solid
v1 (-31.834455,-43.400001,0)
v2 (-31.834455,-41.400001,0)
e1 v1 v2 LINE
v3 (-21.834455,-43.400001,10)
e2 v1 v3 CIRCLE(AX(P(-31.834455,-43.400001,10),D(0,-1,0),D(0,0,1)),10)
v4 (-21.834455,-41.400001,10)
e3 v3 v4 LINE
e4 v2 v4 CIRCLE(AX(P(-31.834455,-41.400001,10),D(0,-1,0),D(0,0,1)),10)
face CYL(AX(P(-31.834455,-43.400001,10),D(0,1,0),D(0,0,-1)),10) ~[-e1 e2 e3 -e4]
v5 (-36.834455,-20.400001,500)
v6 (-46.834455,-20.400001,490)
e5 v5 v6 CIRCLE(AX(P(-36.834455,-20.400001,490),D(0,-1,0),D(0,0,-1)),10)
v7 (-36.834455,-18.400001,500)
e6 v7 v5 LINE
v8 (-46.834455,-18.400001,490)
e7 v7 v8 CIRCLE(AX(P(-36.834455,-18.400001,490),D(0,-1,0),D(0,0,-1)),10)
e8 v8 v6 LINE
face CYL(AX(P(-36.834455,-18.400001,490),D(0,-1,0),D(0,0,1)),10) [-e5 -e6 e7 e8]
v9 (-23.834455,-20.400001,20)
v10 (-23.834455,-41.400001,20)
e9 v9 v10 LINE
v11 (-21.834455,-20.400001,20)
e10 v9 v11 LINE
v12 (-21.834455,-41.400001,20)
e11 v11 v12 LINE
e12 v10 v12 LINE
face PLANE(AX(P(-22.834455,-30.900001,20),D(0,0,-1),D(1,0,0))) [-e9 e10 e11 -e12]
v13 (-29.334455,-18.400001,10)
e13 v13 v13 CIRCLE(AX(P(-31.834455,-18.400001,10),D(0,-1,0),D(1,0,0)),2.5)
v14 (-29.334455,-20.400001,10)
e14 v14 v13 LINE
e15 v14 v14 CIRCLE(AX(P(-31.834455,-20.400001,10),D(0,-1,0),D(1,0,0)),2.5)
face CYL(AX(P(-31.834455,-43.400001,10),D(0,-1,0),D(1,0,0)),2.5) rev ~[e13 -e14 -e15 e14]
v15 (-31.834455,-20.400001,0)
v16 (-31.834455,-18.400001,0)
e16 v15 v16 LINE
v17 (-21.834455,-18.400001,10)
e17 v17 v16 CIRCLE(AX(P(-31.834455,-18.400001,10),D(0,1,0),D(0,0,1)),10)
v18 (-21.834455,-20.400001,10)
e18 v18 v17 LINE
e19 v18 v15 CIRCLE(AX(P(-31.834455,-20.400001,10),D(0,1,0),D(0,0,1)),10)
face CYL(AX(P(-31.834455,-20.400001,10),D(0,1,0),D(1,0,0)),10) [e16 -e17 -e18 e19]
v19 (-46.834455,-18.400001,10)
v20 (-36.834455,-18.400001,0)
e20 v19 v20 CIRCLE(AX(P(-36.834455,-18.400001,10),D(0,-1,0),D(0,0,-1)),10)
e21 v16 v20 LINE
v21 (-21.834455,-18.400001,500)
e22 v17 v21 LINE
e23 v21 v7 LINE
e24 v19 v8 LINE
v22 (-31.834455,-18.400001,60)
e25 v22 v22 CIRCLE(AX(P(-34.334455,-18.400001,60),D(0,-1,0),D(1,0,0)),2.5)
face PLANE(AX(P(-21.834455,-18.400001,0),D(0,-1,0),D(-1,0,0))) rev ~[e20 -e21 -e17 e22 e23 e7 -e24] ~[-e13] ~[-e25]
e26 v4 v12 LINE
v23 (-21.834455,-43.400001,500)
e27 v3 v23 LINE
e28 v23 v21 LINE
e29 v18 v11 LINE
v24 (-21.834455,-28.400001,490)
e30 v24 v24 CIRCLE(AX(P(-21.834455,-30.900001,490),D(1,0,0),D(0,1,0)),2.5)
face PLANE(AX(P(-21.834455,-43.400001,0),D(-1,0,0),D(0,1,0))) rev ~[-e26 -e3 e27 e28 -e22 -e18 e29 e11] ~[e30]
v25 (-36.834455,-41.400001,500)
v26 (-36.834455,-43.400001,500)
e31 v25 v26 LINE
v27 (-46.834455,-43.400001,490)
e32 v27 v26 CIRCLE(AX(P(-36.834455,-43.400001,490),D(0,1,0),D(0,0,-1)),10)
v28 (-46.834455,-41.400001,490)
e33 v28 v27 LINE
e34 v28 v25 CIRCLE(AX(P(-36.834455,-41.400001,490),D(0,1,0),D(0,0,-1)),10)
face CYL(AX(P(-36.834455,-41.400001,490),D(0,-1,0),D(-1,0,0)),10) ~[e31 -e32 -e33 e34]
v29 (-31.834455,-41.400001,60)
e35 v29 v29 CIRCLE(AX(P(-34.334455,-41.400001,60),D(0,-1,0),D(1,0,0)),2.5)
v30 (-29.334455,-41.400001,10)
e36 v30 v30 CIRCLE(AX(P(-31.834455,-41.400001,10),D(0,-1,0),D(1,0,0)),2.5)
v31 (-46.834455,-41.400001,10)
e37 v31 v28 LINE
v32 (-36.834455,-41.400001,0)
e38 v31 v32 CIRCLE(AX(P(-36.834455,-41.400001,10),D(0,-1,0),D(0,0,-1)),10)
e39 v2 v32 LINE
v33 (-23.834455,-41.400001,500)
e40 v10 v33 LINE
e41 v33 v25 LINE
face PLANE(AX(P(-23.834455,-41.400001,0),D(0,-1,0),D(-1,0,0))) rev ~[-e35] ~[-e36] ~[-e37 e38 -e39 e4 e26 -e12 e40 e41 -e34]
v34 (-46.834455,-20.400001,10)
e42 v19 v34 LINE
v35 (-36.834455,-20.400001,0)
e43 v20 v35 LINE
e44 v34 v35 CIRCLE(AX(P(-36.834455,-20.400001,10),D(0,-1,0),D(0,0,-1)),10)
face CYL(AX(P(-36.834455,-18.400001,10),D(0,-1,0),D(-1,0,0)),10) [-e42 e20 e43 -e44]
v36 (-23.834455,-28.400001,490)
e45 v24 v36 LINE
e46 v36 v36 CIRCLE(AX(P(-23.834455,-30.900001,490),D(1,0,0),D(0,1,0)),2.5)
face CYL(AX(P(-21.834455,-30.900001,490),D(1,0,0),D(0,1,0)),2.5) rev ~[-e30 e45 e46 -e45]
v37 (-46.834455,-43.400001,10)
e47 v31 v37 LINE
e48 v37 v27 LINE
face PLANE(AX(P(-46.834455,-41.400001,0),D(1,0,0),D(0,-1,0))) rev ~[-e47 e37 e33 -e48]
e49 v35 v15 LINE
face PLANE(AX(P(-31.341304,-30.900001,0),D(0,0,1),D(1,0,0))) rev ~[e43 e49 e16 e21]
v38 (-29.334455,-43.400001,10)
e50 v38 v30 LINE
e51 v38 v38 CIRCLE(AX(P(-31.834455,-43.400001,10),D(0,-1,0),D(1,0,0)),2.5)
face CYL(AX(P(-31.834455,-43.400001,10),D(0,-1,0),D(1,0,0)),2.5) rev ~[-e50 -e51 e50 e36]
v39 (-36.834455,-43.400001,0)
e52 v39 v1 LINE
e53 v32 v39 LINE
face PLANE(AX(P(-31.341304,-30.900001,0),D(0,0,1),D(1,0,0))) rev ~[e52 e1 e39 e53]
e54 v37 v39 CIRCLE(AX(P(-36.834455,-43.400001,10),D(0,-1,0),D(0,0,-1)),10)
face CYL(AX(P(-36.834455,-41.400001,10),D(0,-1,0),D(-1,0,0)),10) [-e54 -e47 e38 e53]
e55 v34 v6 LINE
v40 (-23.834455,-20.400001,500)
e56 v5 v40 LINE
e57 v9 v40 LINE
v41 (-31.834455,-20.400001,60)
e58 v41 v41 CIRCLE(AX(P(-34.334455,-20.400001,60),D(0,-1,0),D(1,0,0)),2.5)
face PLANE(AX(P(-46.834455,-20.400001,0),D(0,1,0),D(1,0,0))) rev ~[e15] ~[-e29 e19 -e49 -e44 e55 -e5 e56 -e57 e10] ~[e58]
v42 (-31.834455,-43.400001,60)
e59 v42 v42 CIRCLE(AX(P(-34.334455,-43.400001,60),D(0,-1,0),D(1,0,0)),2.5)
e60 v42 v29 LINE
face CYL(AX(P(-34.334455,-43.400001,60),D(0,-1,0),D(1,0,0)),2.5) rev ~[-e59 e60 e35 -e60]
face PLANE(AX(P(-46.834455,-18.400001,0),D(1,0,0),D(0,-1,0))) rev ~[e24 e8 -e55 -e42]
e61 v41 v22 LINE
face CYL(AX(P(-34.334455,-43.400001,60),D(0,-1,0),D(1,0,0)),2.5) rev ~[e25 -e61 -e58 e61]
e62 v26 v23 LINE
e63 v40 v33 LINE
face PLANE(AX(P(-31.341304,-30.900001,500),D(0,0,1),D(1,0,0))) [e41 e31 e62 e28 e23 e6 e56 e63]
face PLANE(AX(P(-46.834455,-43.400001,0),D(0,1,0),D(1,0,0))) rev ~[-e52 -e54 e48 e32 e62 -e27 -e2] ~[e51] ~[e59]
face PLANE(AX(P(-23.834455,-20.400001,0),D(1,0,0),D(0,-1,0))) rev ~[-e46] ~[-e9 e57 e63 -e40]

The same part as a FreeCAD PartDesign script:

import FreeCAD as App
import Part
import Sketcher
Q = App.Units.Quantity


def edges_at(feature, points):
    """Names of the edges that pass closest to the given points."""
    edges = feature.Shape.Edges
    near = lambda p: min(range(len(edges)), key=lambda i: edges[i].distToShape(Part.Vertex(*p))[0])
    return sorted({f"Edge{near(p) + 1}" for p in points})


def add_polygon(sketch, points):
    """Adds a closed chain of lines whose ends are joined by coincident constraints."""
    first, n = sketch.GeometryCount, len(points)
    for a, b in zip(points, points[1:] + points[:1]):
        sketch.addGeometry(Part.LineSegment(App.Vector(*a, 0), App.Vector(*b, 0)), False)
    for i in range(n):
        sketch.addConstraint(Sketcher.Constraint("Coincident", first + i, 2, first + (i + 1) % n, 1))

doc = App.newDocument("Part")
body = doc.addObject("PartDesign::Body", "Body")

# Sketch on XY plane
sketch1 = body.newObject("Sketcher::SketchObject", "Sketch")
sketch1.AttachmentSupport = (doc.getObject("XY_Plane"), [""])
sketch1.MapMode = "FlatFace"
add_polygon(sketch1, [(-46.834455, -41.400001), (-46.834455, -43.400001), (-21.834455, -43.400001), (-21.834455, -18.400001), (-46.834455, -18.400001), (-46.834455, -20.400001), (-23.834455, -20.400001), (-23.834455, -41.400001)])  # lines 0-7
sketch1.addConstraint([
    Sketcher.Constraint("Vertical", 0),
    Sketcher.Constraint("Horizontal", 1),
    Sketcher.Constraint("Vertical", 2),
    Sketcher.Constraint("Horizontal", 3),
    Sketcher.Constraint("Vertical", 4),
    Sketcher.Constraint("Horizontal", 5),
    Sketcher.Constraint("Vertical", 6),
    Sketcher.Constraint("Horizontal", 7),
    Sketcher.Constraint("Vertical", 0, 2, 3, 2),
    Sketcher.Constraint("Equal", 3, 2),
    Sketcher.Constraint("Equal", 0, 4),
    Sketcher.Constraint("DistanceX", 1, 1, 1, 2, Q("25 mm")),
    Sketcher.Constraint("DistanceX", 5, 1, 5, 2, Q("23 mm")),
    Sketcher.Constraint("DistanceY", 0, 2, 0, 1, Q("2 mm")),
    Sketcher.Constraint("DistanceY", 0, 2, -1, 1, Q("43.400001 mm")),
    Sketcher.Constraint("DistanceX", 0, 2, -1, 1, Q("46.834455 mm")),
])
pad1 = body.newObject("PartDesign::Pad", "Pad")
pad1.Profile = sketch1
pad1.Length = 500

# Sketch on XY plane
sketch2 = body.newObject("Sketcher::SketchObject", "Sketch001")
sketch2.AttachmentSupport = (doc.getObject("XY_Plane"), [""])
sketch2.MapMode = "FlatFace"
add_polygon(sketch2, [(-23.834455, -41.400001), (-23.834455, -20.400001), (-21.834455, -20.400001), (-21.834455, -41.400001)])  # lines 0-3
sketch2.addConstraint([
    Sketcher.Constraint("Vertical", 0),
    Sketcher.Constraint("Horizontal", 1),
    Sketcher.Constraint("Vertical", 2),
    Sketcher.Constraint("Horizontal", 3),
    Sketcher.Constraint("DistanceX", 1, 1, 1, 2, Q("2 mm")),
    Sketcher.Constraint("DistanceY", 0, 1, 0, 2, Q("21 mm")),
    Sketcher.Constraint("DistanceY", 0, 2, -1, 1, Q("20.400001 mm")),
    Sketcher.Constraint("DistanceX", 0, 2, -1, 1, Q("23.834455 mm")),
])
pocket1 = body.newObject("PartDesign::Pocket", "Pocket")
pocket1.Profile = sketch2
pocket1.Length = 20
pocket1.Reversed = True

# Sketch on XZ plane
sketch3 = body.newObject("Sketcher::SketchObject", "Sketch002")
sketch3.AttachmentSupport = (doc.getObject("XZ_Plane"), [""])
sketch3.MapMode = "FlatFace"
sketch3.AttachmentOffset = App.Placement(App.Vector(0, 0, 43.400001), App.Rotation())
sketch3.addGeometry(Part.Circle(App.Vector(-31.834455, 10, 0), App.Vector(0, 0, 1), 2.5), False)
sketch3.addConstraint([
    Sketcher.Constraint("Diameter", 0, Q("5 mm")),
    Sketcher.Constraint("DistanceY", -1, 1, 0, 3, Q("10 mm")),
    Sketcher.Constraint("DistanceX", 0, 3, -1, 1, Q("31.834455 mm")),
])
pocket2 = body.newObject("PartDesign::Pocket", "Pocket001")
pocket2.Profile = sketch3
pocket2.Length = 25
doc.recompute()

fillet = body.newObject("PartDesign::Fillet", "Fillet")
fillet.Base = (pocket2, edges_at(pocket2, [
    (-46.834, -19.4, 0),
    (-46.834, -42.4, 0),
    (-46.834, -42.4, 500),
    (-46.834, -19.4, 500),
    (-21.834, -42.4, 0),
    (-21.834, -19.4, 0),
]))
fillet.Radius = 10

# Sketch on YZ plane
sketch4 = body.newObject("Sketcher::SketchObject", "Sketch003")
sketch4.AttachmentSupport = (doc.getObject("YZ_Plane"), [""])
sketch4.MapMode = "FlatFace"
sketch4.AttachmentOffset = App.Placement(App.Vector(0, 0, -21.834455), App.Rotation())
sketch4.addGeometry(Part.Circle(App.Vector(-30.900001, 490, 0), App.Vector(0, 0, 1), 2.5), False)
sketch4.addConstraint([
    Sketcher.Constraint("Diameter", 0, Q("5 mm")),
    Sketcher.Constraint("DistanceY", -1, 1, 0, 3, Q("490 mm")),
    Sketcher.Constraint("DistanceX", 0, 3, -1, 1, Q("30.900001 mm")),
])
pocket3 = body.newObject("PartDesign::Pocket", "Pocket002")
pocket3.Profile = sketch4
pocket3.Length = 25

# Sketch on XZ plane
sketch5 = body.newObject("Sketcher::SketchObject", "Sketch004")
sketch5.AttachmentSupport = (doc.getObject("XZ_Plane"), [""])
sketch5.MapMode = "FlatFace"
sketch5.AttachmentOffset = App.Placement(App.Vector(0, 0, 43.400001), App.Rotation())
sketch5.addGeometry(Part.Circle(App.Vector(-34.334455, 60, 0), App.Vector(0, 0, 1), 2.5), False)
sketch5.addConstraint([
    Sketcher.Constraint("Diameter", 0, Q("5 mm")),
    Sketcher.Constraint("DistanceY", -1, 1, 0, 3, Q("60 mm")),
    Sketcher.Constraint("DistanceX", 0, 3, -1, 1, Q("34.334455 mm")),
])
pocket4 = body.newObject("PartDesign::Pocket", "Pocket003")
pocket4.Profile = sketch5
pocket4.Length = 25

doc.recompute()
